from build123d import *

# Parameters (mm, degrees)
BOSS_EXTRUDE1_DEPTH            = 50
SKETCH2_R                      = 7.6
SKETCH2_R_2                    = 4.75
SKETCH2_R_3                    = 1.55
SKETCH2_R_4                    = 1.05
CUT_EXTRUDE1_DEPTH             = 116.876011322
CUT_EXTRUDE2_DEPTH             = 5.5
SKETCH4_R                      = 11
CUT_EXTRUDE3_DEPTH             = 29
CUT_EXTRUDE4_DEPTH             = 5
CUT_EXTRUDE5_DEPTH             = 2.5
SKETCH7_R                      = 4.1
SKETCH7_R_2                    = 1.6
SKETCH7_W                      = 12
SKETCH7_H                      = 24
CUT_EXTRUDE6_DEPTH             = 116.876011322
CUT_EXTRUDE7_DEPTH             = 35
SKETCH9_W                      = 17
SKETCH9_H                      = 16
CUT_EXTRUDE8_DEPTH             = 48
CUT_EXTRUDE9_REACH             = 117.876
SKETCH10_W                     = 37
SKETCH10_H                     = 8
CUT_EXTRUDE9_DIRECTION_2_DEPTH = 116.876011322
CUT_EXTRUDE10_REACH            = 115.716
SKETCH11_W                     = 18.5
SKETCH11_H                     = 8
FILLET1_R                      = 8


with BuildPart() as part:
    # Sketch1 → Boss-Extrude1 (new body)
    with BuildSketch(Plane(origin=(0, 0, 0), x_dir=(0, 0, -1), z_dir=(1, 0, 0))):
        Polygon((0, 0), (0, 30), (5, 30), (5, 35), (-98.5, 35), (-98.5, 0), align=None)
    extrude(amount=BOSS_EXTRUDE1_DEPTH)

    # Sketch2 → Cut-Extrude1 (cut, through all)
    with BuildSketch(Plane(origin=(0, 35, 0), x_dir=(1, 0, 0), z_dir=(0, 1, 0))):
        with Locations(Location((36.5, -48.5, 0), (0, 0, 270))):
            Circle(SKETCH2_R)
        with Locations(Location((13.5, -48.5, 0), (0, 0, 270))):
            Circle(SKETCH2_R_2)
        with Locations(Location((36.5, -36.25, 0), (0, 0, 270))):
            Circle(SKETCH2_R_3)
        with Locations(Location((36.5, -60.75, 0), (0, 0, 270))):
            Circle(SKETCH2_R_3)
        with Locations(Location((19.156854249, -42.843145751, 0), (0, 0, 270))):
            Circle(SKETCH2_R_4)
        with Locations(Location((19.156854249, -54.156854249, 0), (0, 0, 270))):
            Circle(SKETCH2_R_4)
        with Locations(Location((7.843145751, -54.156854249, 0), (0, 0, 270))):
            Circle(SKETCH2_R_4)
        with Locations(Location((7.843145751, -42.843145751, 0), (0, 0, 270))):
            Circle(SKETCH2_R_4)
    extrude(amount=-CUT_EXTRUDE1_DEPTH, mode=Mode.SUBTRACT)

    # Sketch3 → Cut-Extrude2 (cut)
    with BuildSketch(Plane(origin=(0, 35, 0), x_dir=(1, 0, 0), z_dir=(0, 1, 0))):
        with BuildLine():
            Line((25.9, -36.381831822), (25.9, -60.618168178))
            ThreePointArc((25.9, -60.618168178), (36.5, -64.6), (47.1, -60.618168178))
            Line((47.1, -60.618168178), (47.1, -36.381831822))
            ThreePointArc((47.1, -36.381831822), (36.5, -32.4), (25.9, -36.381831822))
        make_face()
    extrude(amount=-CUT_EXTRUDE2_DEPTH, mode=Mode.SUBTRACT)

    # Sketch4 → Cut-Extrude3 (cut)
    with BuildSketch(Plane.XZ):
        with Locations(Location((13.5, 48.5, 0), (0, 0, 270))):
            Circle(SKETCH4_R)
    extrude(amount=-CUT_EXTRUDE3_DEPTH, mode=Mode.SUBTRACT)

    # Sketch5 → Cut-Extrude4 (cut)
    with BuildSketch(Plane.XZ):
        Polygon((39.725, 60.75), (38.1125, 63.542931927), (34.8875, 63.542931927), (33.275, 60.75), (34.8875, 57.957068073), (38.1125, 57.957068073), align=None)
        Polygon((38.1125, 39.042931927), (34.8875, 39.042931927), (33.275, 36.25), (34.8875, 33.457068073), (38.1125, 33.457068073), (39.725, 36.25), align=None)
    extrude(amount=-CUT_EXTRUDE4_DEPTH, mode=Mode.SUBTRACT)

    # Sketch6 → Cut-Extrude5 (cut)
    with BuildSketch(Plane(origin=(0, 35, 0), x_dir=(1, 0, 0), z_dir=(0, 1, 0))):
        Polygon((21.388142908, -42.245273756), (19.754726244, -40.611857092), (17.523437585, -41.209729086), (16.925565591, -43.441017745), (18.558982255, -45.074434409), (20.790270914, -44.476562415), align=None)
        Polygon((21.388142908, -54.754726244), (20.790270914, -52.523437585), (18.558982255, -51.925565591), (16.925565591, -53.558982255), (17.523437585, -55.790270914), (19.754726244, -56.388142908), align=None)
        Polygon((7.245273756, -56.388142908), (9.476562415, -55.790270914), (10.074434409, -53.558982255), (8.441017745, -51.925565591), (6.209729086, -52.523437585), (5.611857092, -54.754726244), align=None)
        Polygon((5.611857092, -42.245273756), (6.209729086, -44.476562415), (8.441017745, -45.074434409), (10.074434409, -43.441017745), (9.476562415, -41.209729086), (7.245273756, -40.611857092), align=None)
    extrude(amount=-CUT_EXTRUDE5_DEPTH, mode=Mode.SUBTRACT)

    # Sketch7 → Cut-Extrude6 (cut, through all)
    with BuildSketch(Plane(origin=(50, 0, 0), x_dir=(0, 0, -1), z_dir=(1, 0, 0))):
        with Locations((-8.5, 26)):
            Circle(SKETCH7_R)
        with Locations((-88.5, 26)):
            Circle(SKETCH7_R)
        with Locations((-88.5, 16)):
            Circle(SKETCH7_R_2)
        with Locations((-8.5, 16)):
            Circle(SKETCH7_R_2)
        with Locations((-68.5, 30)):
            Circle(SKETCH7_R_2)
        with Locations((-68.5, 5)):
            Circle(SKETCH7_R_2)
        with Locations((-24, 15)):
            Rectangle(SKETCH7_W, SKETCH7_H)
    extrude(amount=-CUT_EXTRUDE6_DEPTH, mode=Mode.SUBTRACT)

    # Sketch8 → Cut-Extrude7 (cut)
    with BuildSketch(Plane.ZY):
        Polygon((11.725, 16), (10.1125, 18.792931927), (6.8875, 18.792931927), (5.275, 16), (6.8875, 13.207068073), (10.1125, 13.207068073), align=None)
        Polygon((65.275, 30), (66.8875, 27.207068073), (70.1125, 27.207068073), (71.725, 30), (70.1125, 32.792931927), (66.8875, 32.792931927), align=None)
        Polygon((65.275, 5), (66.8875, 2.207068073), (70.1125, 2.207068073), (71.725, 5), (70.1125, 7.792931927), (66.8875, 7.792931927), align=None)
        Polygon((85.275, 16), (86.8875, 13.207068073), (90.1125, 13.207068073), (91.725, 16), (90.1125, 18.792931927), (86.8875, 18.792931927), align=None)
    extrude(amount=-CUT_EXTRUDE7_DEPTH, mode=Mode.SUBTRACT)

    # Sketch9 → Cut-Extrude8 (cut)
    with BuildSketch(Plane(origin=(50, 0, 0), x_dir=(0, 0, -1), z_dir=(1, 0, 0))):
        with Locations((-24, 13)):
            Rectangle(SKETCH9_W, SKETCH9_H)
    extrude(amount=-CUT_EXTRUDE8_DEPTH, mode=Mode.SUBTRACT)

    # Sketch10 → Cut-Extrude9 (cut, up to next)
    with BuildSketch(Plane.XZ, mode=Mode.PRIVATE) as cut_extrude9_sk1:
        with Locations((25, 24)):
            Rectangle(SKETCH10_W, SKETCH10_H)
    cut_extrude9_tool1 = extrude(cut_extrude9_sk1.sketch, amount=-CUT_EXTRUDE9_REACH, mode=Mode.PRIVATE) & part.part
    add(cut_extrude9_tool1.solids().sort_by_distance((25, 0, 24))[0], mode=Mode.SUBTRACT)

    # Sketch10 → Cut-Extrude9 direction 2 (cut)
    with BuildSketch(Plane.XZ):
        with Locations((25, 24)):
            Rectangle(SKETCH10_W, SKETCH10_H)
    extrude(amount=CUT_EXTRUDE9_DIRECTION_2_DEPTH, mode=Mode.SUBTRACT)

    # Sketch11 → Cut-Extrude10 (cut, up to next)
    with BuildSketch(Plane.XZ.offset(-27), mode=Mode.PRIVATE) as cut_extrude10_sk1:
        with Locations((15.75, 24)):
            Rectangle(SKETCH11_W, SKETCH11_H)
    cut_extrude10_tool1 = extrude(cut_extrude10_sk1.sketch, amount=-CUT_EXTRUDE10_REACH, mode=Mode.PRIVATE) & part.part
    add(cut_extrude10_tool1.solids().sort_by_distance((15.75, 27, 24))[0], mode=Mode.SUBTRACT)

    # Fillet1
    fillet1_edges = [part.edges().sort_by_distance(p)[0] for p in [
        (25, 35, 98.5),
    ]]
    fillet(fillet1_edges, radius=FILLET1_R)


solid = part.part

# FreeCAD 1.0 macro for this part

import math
import FreeCAD as App
import Part
import Sketcher

V = App.Vector
Q = App.Units.Quantity


def edges_at(feature, points):
    """Names of the edges that pass closest to the given points."""
    edges = feature.Shape.Edges
    near = lambda p: min(range(len(edges)), key=lambda i: edges[i].distToShape(Part.Vertex(*p))[0])
    return sorted({f"Edge{near(p) + 1}" for p in points})

doc = App.newDocument("Part")
body = doc.addObject("PartDesign::Body", "Body")

# Sketch on YZ plane
sketch1 = body.newObject("Sketcher::SketchObject", "Sketch")
sketch1.AttachmentSupport = (doc.getObject("YZ_Plane"), [""])
sketch1.MapMode = "FlatFace"
sketch1.addGeometry([
    Part.LineSegment(V(0, 0, 0), V(30, 0, 0)),  # 0
    Part.LineSegment(V(30, 0, 0), V(30, -5, 0)),  # 1
    Part.LineSegment(V(30, -5, 0), V(35, -5, 0)),  # 2
    Part.LineSegment(V(35, -5, 0), V(35, 98, 0)),  # 3
    Part.LineSegment(V(35, 98, 0), V(0, 98, 0)),  # 4
    Part.LineSegment(V(0, 98, 0), V(0, 0, 0)),  # 5
], False)
sketch1.addConstraint([
    Sketcher.Constraint("Coincident", 0, 2, 1, 1),
    Sketcher.Constraint("Coincident", 1, 2, 2, 1),
    Sketcher.Constraint("Coincident", 2, 2, 3, 1),
    Sketcher.Constraint("Coincident", 3, 2, 4, 1),
    Sketcher.Constraint("Coincident", 4, 2, 5, 1),
    Sketcher.Constraint("Coincident", 5, 2, 0, 1),
    Sketcher.Constraint("Horizontal", 0),
    Sketcher.Constraint("Vertical", 1),
    Sketcher.Constraint("Horizontal", 2),
    Sketcher.Constraint("Vertical", 3),
    Sketcher.Constraint("Horizontal", 4),
    Sketcher.Constraint("Vertical", 5),
    Sketcher.Constraint("Coincident", 5, 2, -1, 1),
    Sketcher.Constraint("Equal", 2, 1),
    Sketcher.Constraint("DistanceX", 0, 1, 0, 2, 30.0),
    Sketcher.Constraint("DistanceX", 2, 1, 2, 2, 5.0),
    Sketcher.Constraint("DistanceY", 3, 1, 3, 2, 103.5),
])
pad1 = body.newObject("PartDesign::Pad", "Pad")
pad1.Profile = sketch1
pad1.Length = 50

# Sketch on XZ plane
sketch2 = body.newObject("Sketcher::SketchObject", "Sketch001")
sketch2.AttachmentSupport = (doc.getObject("XZ_Plane"), [""])
sketch2.MapMode = "FlatFace"
sketch2.AttachmentOffset = App.Placement(V(0, 0, -35), App.Rotation())
sketch2.addGeometry([
    Part.Circle(V(36.5, 48.5, 0), V(0, 0, 1), 7.6),  # 0
    Part.Circle(V(13.5, 48.5, 0), V(0, 0, 1), 4.8),  # 1
    Part.Circle(V(36.5, 36.2, 0), V(0, 0, 1), 1.6),  # 2
    Part.Circle(V(36.5, 60.8, 0), V(0, 0, 1), 1.6),  # 3
    Part.Circle(V(19.2, 42.8, 0), V(0, 0, 1), 1.1),  # 4
    Part.Circle(V(19.2, 54.2, 0), V(0, 0, 1), 1.1),  # 5
    Part.Circle(V(7.8, 54.2, 0), V(0, 0, 1), 1.1),  # 6
    Part.Circle(V(7.8, 42.8, 0), V(0, 0, 1), 1.1),  # 7
], False)
sketch2.addConstraint([
    Sketcher.Constraint("Equal", 2, 3),
    Sketcher.Constraint("Equal", 4, 5),
    Sketcher.Constraint("Equal", 5, 6),
    Sketcher.Constraint("Equal", 6, 7),
    Sketcher.Constraint("Horizontal", 0, 3, 1, 3),
    Sketcher.Constraint("Horizontal", 5, 3, 6, 3),
    Sketcher.Constraint("Horizontal", 4, 3, 7, 3),
    Sketcher.Constraint("Vertical", 0, 3, 2, 3),
    Sketcher.Constraint("Vertical", 2, 3, 3, 3),
    Sketcher.Constraint("Vertical", 4, 3, 5, 3),
    Sketcher.Constraint("Vertical", 6, 3, 7, 3),
    Sketcher.Constraint("Diameter", 0, 15.2),
    Sketcher.Constraint("Diameter", 1, 9.5),
    Sketcher.Constraint("Diameter", 2, 3.1),
    Sketcher.Constraint("Diameter", 4, 2.1),
    Sketcher.Constraint("DistanceX", 1, 3, 0, 3, 23.0),
    Sketcher.Constraint("DistanceX", -1, 1, 0, 3, 36.5),
    Sketcher.Constraint("DistanceY", -1, 1, 0, 3, 48.5),
    Sketcher.Constraint("DistanceY", 2, 3, 3, 3, 24.5),
    Sketcher.Constraint("DistanceY", -1, 1, 2, 3, 36.25),
    Sketcher.Constraint("DistanceY", 4, 3, 5, 3, 11.313708),
    Sketcher.Constraint("DistanceX", 6, 3, 5, 3, 11.313708),
    Sketcher.Constraint("DistanceX", -1, 1, 4, 3, 19.156854),
    Sketcher.Constraint("DistanceY", -1, 1, 4, 3, 42.843146),
])
pocket1 = body.newObject("PartDesign::Pocket", "Pocket")
pocket1.Profile = sketch2
pocket1.Type = "ThroughAll"
pocket1.Reversed = True

# Sketch on XZ plane
sketch3 = body.newObject("Sketcher::SketchObject", "Sketch002")
sketch3.AttachmentSupport = (doc.getObject("XZ_Plane"), [""])
sketch3.MapMode = "FlatFace"
sketch3.AttachmentOffset = App.Placement(V(0, 0, -35), App.Rotation())
sketch3.addGeometry([
    Part.LineSegment(V(26, 36, 0), V(26, 61, 0)),
    Part.ArcOfCircle(Part.Circle(V(36, 49, 0), V(0, 0, 1), 16), math.radians(49), math.radians(131)),
    Part.LineSegment(V(47, 61, 0), V(47, 36, 0)),
    Part.ArcOfCircle(Part.Circle(V(36, 48, 0), V(0, 0, 1), 16), math.radians(-131), math.radians(-49)),
], False)
sketch3.addConstraint([
    Sketcher.Constraint("Coincident", 0, 2, 1, 2),
    Sketcher.Constraint("Coincident", 1, 1, 2, 1),
    Sketcher.Constraint("Coincident", 2, 2, 3, 2),
    Sketcher.Constraint("Coincident", 3, 1, 0, 1),
    Sketcher.Constraint("Vertical", 0),
    Sketcher.Constraint("Vertical", 2),
    Sketcher.Constraint("Coincident", 3, 3, 1, 3),
    Sketcher.Constraint("Equal", 1, 3),
    Sketcher.Constraint("Horizontal", 0, 2, 1, 1),
    Sketcher.Constraint("Radius", 1, 16.1),
    Sketcher.Constraint("DistanceX", -1, 1, 1, 3, 36.5),
    Sketcher.Constraint("DistanceY", -1, 1, 1, 3, 48.5),
    Sketcher.Constraint("DistanceX", -1, 1, 0, 2, 25.9),
])
pocket2 = body.newObject("PartDesign::Pocket", "Pocket001")
pocket2.Profile = sketch3
pocket2.Length = 5.5
pocket2.Reversed = True

# Sketch on XZ plane
sketch4 = body.newObject("Sketcher::SketchObject", "Sketch003")
sketch4.AttachmentSupport = (doc.getObject("XZ_Plane"), [""])
sketch4.MapMode = "FlatFace"
sketch4.addGeometry(Part.Circle(V(14, 48, 0), V(0, 0, 1), 11), False)
sketch4.addConstraint([
    Sketcher.Constraint("Diameter", 0, 22.0),
    Sketcher.Constraint("DistanceX", -1, 1, 0, 3, 13.5),
    Sketcher.Constraint("DistanceY", -1, 1, 0, 3, 48.5),
])
pocket3 = body.newObject("PartDesign::Pocket", "Pocket002")
pocket3.Profile = sketch4
pocket3.Length = 29

# Sketch on XZ plane
sketch5 = body.newObject("Sketcher::SketchObject", "Sketch004")
sketch5.AttachmentSupport = (doc.getObject("XZ_Plane"), [""])
sketch5.MapMode = "FlatFace"
sketch5.addGeometry([
    Part.LineSegment(V(39.7, 60.8, 0), V(38.1, 63.5, 0)),  # 0
    Part.LineSegment(V(38.1, 63.5, 0), V(34.9, 63.5, 0)),  # 1
    Part.LineSegment(V(34.9, 63.5, 0), V(33.3, 60.8, 0)),  # 2
    Part.LineSegment(V(33.3, 60.8, 0), V(34.9, 58, 0)),  # 3
    Part.LineSegment(V(34.9, 58, 0), V(38.1, 58, 0)),  # 4
    Part.LineSegment(V(38.1, 58, 0), V(39.7, 60.8, 0)),  # 5
    Part.LineSegment(V(38.1, 39, 0), V(34.9, 39, 0)),  # 6
    Part.LineSegment(V(34.9, 39, 0), V(33.3, 36.2, 0)),  # 7
    Part.LineSegment(V(33.3, 36.2, 0), V(34.9, 33.5, 0)),  # 8
    Part.LineSegment(V(34.9, 33.5, 0), V(38.1, 33.5, 0)),  # 9
    Part.LineSegment(V(38.1, 33.5, 0), V(39.7, 36.2, 0)),  # 10
    Part.LineSegment(V(39.7, 36.2, 0), V(38.1, 39, 0)),  # 11
], False)
sketch5.addConstraint([
    Sketcher.Constraint("Coincident", 0, 2, 1, 1),
    Sketcher.Constraint("Coincident", 1, 2, 2, 1),
    Sketcher.Constraint("Coincident", 2, 2, 3, 1),
    Sketcher.Constraint("Coincident", 3, 2, 4, 1),
    Sketcher.Constraint("Coincident", 4, 2, 5, 1),
    Sketcher.Constraint("Coincident", 5, 2, 0, 1),
    Sketcher.Constraint("Coincident", 6, 2, 7, 1),
    Sketcher.Constraint("Coincident", 7, 2, 8, 1),
    Sketcher.Constraint("Coincident", 8, 2, 9, 1),
    Sketcher.Constraint("Coincident", 9, 2, 10, 1),
    Sketcher.Constraint("Coincident", 10, 2, 11, 1),
    Sketcher.Constraint("Coincident", 11, 2, 6, 1),
    Sketcher.Constraint("Horizontal", 1),
    Sketcher.Constraint("Horizontal", 4),
    Sketcher.Constraint("Horizontal", 6),
    Sketcher.Constraint("Horizontal", 9),
    Sketcher.Constraint("Parallel", 0, 3),
    Sketcher.Constraint("Parallel", 2, 5),
    Sketcher.Constraint("Parallel", 5, 7),
    Sketcher.Constraint("Parallel", 3, 8),
    Sketcher.Constraint("Parallel", 7, 10),
    Sketcher.Constraint("Parallel", 8, 11),
    Sketcher.Constraint("Horizontal", 2, 2, 5, 2),
    Sketcher.Constraint("Horizontal", 7, 2, 10, 2),
    Sketcher.Constraint("Vertical", 1, 2, 3, 2),
    Sketcher.Constraint("Vertical", 0, 2, 4, 2),
    Sketcher.Constraint("Vertical", 3, 2, 6, 2),
    Sketcher.Constraint("Vertical", 2, 2, 7, 2),
    Sketcher.Constraint("Vertical", 6, 2, 8, 2),
    Sketcher.Constraint("Vertical", 4, 2, 9, 2),
    Sketcher.Constraint("Angle", 0, Q("120 deg")),
    Sketcher.Constraint("DistanceY", 6, 2, 1, 2, 24.5),
    Sketcher.Constraint("DistanceX", 1, 2, 1, 1, 3.225),
    Sketcher.Constraint("DistanceY", -1, 1, 2, 2, 60.75),
    Sketcher.Constraint("DistanceX", 2, 2, 5, 2, 6.45),
    Sketcher.Constraint("DistanceX", -1, 1, 2, 2, 33.275),
])
pocket4 = body.newObject("PartDesign::Pocket", "Pocket003")
pocket4.Profile = sketch5
pocket4.Length = 5

# Sketch on XZ plane
sketch6 = body.newObject("Sketcher::SketchObject", "Sketch005")
sketch6.AttachmentSupport = (doc.getObject("XZ_Plane"), [""])
sketch6.MapMode = "FlatFace"
sketch6.AttachmentOffset = App.Placement(V(0, 0, -35), App.Rotation())
sketch6.addGeometry([
    Part.LineSegment(V(21.4, 42.2, 0), V(19.8, 40.6, 0)),  # 0
    Part.LineSegment(V(19.8, 40.6, 0), V(17.5, 41.2, 0)),  # 1
    Part.LineSegment(V(17.5, 41.2, 0), V(16.9, 43.4, 0)),  # 2
    Part.LineSegment(V(16.9, 43.4, 0), V(18.6, 45.1, 0)),  # 3
    Part.LineSegment(V(18.6, 45.1, 0), V(20.8, 44.5, 0)),  # 4
    Part.LineSegment(V(20.8, 44.5, 0), V(21.4, 42.2, 0)),  # 5
    Part.LineSegment(V(21.4, 54.8, 0), V(20.8, 52.5, 0)),  # 6
    Part.LineSegment(V(20.8, 52.5, 0), V(18.6, 51.9, 0)),  # 7
    Part.LineSegment(V(18.6, 51.9, 0), V(16.9, 53.6, 0)),  # 8
    Part.LineSegment(V(16.9, 53.6, 0), V(17.5, 55.8, 0)),  # 9
    Part.LineSegment(V(17.5, 55.8, 0), V(19.8, 56.4, 0)),  # 10
    Part.LineSegment(V(19.8, 56.4, 0), V(21.4, 54.8, 0)),  # 11
    Part.LineSegment(V(7.2, 56.4, 0), V(9.5, 55.8, 0)),  # 12
    Part.LineSegment(V(9.5, 55.8, 0), V(10.1, 53.6, 0)),  # 13
    Part.LineSegment(V(10.1, 53.6, 0), V(8.4, 51.9, 0)),  # 14
    Part.LineSegment(V(8.4, 51.9, 0), V(6.2, 52.5, 0)),  # 15
    Part.LineSegment(V(6.2, 52.5, 0), V(5.6, 54.8, 0)),  # 16
    Part.LineSegment(V(5.6, 54.8, 0), V(7.2, 56.4, 0)),  # 17
    Part.LineSegment(V(5.6, 42.2, 0), V(6.2, 44.5, 0)),  # 18
    Part.LineSegment(V(6.2, 44.5, 0), V(8.4, 45.1, 0)),  # 19
    Part.LineSegment(V(8.4, 45.1, 0), V(10.1, 43.4, 0)),  # 20
    Part.LineSegment(V(10.1, 43.4, 0), V(9.5, 41.2, 0)),  # 21
    Part.LineSegment(V(9.5, 41.2, 0), V(7.2, 40.6, 0)),  # 22
    Part.LineSegment(V(7.2, 40.6, 0), V(5.6, 42.2, 0)),  # 23
], False)
sketch6.addConstraint([
    Sketcher.Constraint("Coincident", 0, 2, 1, 1),
    Sketcher.Constraint("Coincident", 1, 2, 2, 1),
    Sketcher.Constraint("Coincident", 2, 2, 3, 1),
    Sketcher.Constraint("Coincident", 3, 2, 4, 1),
    Sketcher.Constraint("Coincident", 4, 2, 5, 1),
    Sketcher.Constraint("Coincident", 5, 2, 0, 1),
    Sketcher.Constraint("Coincident", 6, 2, 7, 1),
    Sketcher.Constraint("Coincident", 7, 2, 8, 1),
    Sketcher.Constraint("Coincident", 8, 2, 9, 1),
    Sketcher.Constraint("Coincident", 9, 2, 10, 1),
    Sketcher.Constraint("Coincident", 10, 2, 11, 1),
    Sketcher.Constraint("Coincident", 11, 2, 6, 1),
    Sketcher.Constraint("Coincident", 12, 2, 13, 1),
    Sketcher.Constraint("Coincident", 13, 2, 14, 1),
    Sketcher.Constraint("Coincident", 14, 2, 15, 1),
    Sketcher.Constraint("Coincident", 15, 2, 16, 1),
    Sketcher.Constraint("Coincident", 16, 2, 17, 1),
    Sketcher.Constraint("Coincident", 17, 2, 12, 1),
    Sketcher.Constraint("Coincident", 18, 2, 19, 1),
    Sketcher.Constraint("Coincident", 19, 2, 20, 1),
    Sketcher.Constraint("Coincident", 20, 2, 21, 1),
    Sketcher.Constraint("Coincident", 21, 2, 22, 1),
    Sketcher.Constraint("Coincident", 22, 2, 23, 1),
    Sketcher.Constraint("Coincident", 23, 2, 18, 1),
    Sketcher.Constraint("Parallel", 0, 3),
    Sketcher.Constraint("Parallel", 1, 4),
    Sketcher.Constraint("Parallel", 2, 5),
    Sketcher.Constraint("Perpendicular", 4, 6),
    Sketcher.Constraint("Perpendicular", 5, 7),
    Sketcher.Constraint("Perpendicular", 3, 8),
    Sketcher.Constraint("Parallel", 6, 9),
    Sketcher.Constraint("Parallel", 7, 10),
    Sketcher.Constraint("Parallel", 8, 11),
    Sketcher.Constraint("Perpendicular", 9, 12),
    Sketcher.Constraint("Perpendicular", 10, 13),
    Sketcher.Constraint("Perpendicular", 11, 14),
    Sketcher.Constraint("Parallel", 12, 15),
    Sketcher.Constraint("Parallel", 13, 16),
    Sketcher.Constraint("Parallel", 14, 17),
    Sketcher.Constraint("Perpendicular", 15, 18),
    Sketcher.Constraint("Perpendicular", 16, 19),
    Sketcher.Constraint("Perpendicular", 17, 20),
    Sketcher.Constraint("Parallel", 18, 21),
    Sketcher.Constraint("Parallel", 19, 22),
    Sketcher.Constraint("Parallel", 20, 23),
    Sketcher.Constraint("Horizontal", 9, 2, 12, 2),
    Sketcher.Constraint("Horizontal", 8, 2, 13, 2),
    Sketcher.Constraint("Horizontal", 7, 2, 14, 2),
    Sketcher.Constraint("Horizontal", 6, 2, 15, 2),
    Sketcher.Constraint("Horizontal", 11, 2, 16, 2),
    Sketcher.Constraint("Horizontal", 4, 2, 18, 2),
    Sketcher.Constraint("Horizontal", 3, 2, 19, 2),
    Sketcher.Constraint("Horizontal", 2, 2, 20, 2),
    Sketcher.Constraint("Horizontal", 1, 2, 21, 2),
    Sketcher.Constraint("Horizontal", 0, 2, 22, 2),
    Sketcher.Constraint("Vertical", 4, 2, 6, 2),
    Sketcher.Constraint("Vertical", 3, 2, 7, 2),
    Sketcher.Constraint("Vertical", 2, 2, 8, 2),
    Sketcher.Constraint("Vertical", 1, 2, 9, 2),
    Sketcher.Constraint("Vertical", 0, 2, 10, 2),
    Sketcher.Constraint("Vertical", 15, 2, 18, 2),
    Sketcher.Constraint("Vertical", 14, 2, 19, 2),
    Sketcher.Constraint("Vertical", 13, 2, 20, 2),
    Sketcher.Constraint("Equal", 0, 1),
    Sketcher.Constraint("Equal", 1, 2),
    Sketcher.Constraint("Equal", 2, 3),
    Sketcher.Constraint("Angle", 1, Q("165 deg")),
    Sketcher.Constraint("Distance", 0, 2.31),
    Sketcher.Constraint("DistanceY", -1, 1, 1, 2, 41.209729),
    Sketcher.Constraint("DistanceX", -1, 1, 4, 2, 20.790271),
    Sketcher.Constraint("DistanceY", -1, 1, 9, 2, 55.790271),
    Sketcher.Constraint("DistanceX", -1, 1, 15, 2, 6.209729),
])
pocket5 = body.newObject("PartDesign::Pocket", "Pocket004")
pocket5.Profile = sketch6
pocket5.Length = 2.5
pocket5.Reversed = True

# Sketch on YZ plane
sketch7 = body.newObject("Sketcher::SketchObject", "Sketch006")
sketch7.AttachmentSupport = (doc.getObject("YZ_Plane"), [""])
sketch7.MapMode = "FlatFace"
sketch7.AttachmentOffset = App.Placement(V(0, 0, 50), App.Rotation())
sketch7.addGeometry([
    Part.Circle(V(26, 8.5, 0), V(0, 0, 1), 4.1),  # 0
    Part.Circle(V(26, 88.5, 0), V(0, 0, 1), 4.1),  # 1
    Part.Circle(V(16, 88.5, 0), V(0, 0, 1), 1.6),  # 2
    Part.Circle(V(16, 8.5, 0), V(0, 0, 1), 1.6),  # 3
    Part.Circle(V(30, 68.5, 0), V(0, 0, 1), 1.6),  # 4
    Part.Circle(V(5, 68.5, 0), V(0, 0, 1), 1.6),  # 5
    Part.LineSegment(V(27, 30, 0), V(3, 30, 0)),  # 6
    Part.LineSegment(V(3, 30, 0), V(3, 18, 0)),  # 7
    Part.LineSegment(V(3, 18, 0), V(27, 18, 0)),  # 8
    Part.LineSegment(V(27, 18, 0), V(27, 30, 0)),  # 9
], False)
sketch7.addConstraint([
    Sketcher.Constraint("Coincident", 6, 2, 7, 1),
    Sketcher.Constraint("Coincident", 7, 2, 8, 1),
    Sketcher.Constraint("Coincident", 8, 2, 9, 1),
    Sketcher.Constraint("Coincident", 9, 2, 6, 1),
    Sketcher.Constraint("Horizontal", 6),
    Sketcher.Constraint("Vertical", 7),
    Sketcher.Constraint("Horizontal", 8),
    Sketcher.Constraint("Vertical", 9),
    Sketcher.Constraint("Equal", 0, 1),
    Sketcher.Constraint("Equal", 2, 3),
    Sketcher.Constraint("Equal", 3, 4),
    Sketcher.Constraint("Equal", 4, 5),
    Sketcher.Constraint("Horizontal", 1, 3, 2, 3),
    Sketcher.Constraint("Horizontal", 0, 3, 3, 3),
    Sketcher.Constraint("Horizontal", 4, 3, 5, 3),
    Sketcher.Constraint("Vertical", 0, 3, 1, 3),
    Sketcher.Constraint("Vertical", 2, 3, 3, 3),
    Sketcher.Constraint("Diameter", 0, 8.2),
    Sketcher.Constraint("Diameter", 2, 3.2),
    Sketcher.Constraint("DistanceX", 6, 2, 6, 1, 24.0),
    Sketcher.Constraint("DistanceY", 7, 2, 7, 1, 12.0),
    Sketcher.Constraint("DistanceX", -1, 1, 0, 3, 26.0),
    Sketcher.Constraint("DistanceX", -1, 1, 2, 3, 16.0),
    Sketcher.Constraint("DistanceX", -1, 1, 4, 3, 30.0),
    Sketcher.Constraint("DistanceX", -1, 1, 5, 3, 5.0),
    Sketcher.Constraint("DistanceX", -1, 1, 6, 2, 3.0),
    Sketcher.Constraint("DistanceY", -1, 1, 6, 2, 30.0),
    Sketcher.Constraint("DistanceY", 0, 3, 1, 3, 80.0),
    Sketcher.Constraint("DistanceY", 4, 3, 1, 3, 20.0),
    Sketcher.Constraint("DistanceY", -1, 1, 0, 3, 8.5),
])
pocket6 = body.newObject("PartDesign::Pocket", "Pocket005")
pocket6.Profile = sketch7
pocket6.Type = "ThroughAll"

# Sketch on YZ plane
sketch8 = body.newObject("Sketcher::SketchObject", "Sketch007")
sketch8.AttachmentSupport = (doc.getObject("YZ_Plane"), [""])
sketch8.MapMode = "FlatFace"
sketch8.addGeometry([
    Part.LineSegment(V(16, 11.7, 0), V(18.8, 10.1, 0)),  # 0
    Part.LineSegment(V(18.8, 10.1, 0), V(18.8, 6.9, 0)),  # 1
    Part.LineSegment(V(18.8, 6.9, 0), V(16, 5.3, 0)),  # 2
    Part.LineSegment(V(16, 5.3, 0), V(13.2, 6.9, 0)),  # 3
    Part.LineSegment(V(13.2, 6.9, 0), V(13.2, 10.1, 0)),  # 4
    Part.LineSegment(V(13.2, 10.1, 0), V(16, 11.7, 0)),  # 5
    Part.LineSegment(V(30, 65.3, 0), V(27.2, 66.9, 0)),  # 6
    Part.LineSegment(V(27.2, 66.9, 0), V(27.2, 70.1, 0)),  # 7
    Part.LineSegment(V(27.2, 70.1, 0), V(30, 71.7, 0)),  # 8
    Part.LineSegment(V(30, 71.7, 0), V(32.8, 70.1, 0)),  # 9
    Part.LineSegment(V(32.8, 70.1, 0), V(32.8, 66.9, 0)),  # 10
    Part.LineSegment(V(32.8, 66.9, 0), V(30, 65.3, 0)),  # 11
    Part.LineSegment(V(5, 65.3, 0), V(2.2, 66.9, 0)),  # 12
    Part.LineSegment(V(2.2, 66.9, 0), V(2.2, 70.1, 0)),  # 13
    Part.LineSegment(V(2.2, 70.1, 0), V(5, 71.7, 0)),  # 14
    Part.LineSegment(V(5, 71.7, 0), V(7.8, 70.1, 0)),  # 15
    Part.LineSegment(V(7.8, 70.1, 0), V(7.8, 66.9, 0)),  # 16
    Part.LineSegment(V(7.8, 66.9, 0), V(5, 65.3, 0)),  # 17
    Part.LineSegment(V(16, 85.3, 0), V(13.2, 86.9, 0)),  # 18
    Part.LineSegment(V(13.2, 86.9, 0), V(13.2, 90.1, 0)),  # 19
    Part.LineSegment(V(13.2, 90.1, 0), V(16, 91.7, 0)),  # 20
    Part.LineSegment(V(16, 91.7, 0), V(18.8, 90.1, 0)),  # 21
    Part.LineSegment(V(18.8, 90.1, 0), V(18.8, 86.9, 0)),  # 22
    Part.LineSegment(V(18.8, 86.9, 0), V(16, 85.3, 0)),  # 23
], False)
sketch8.addConstraint([
    Sketcher.Constraint("Coincident", 0, 2, 1, 1),
    Sketcher.Constraint("Coincident", 1, 2, 2, 1),
    Sketcher.Constraint("Coincident", 2, 2, 3, 1),
    Sketcher.Constraint("Coincident", 3, 2, 4, 1),
    Sketcher.Constraint("Coincident", 4, 2, 5, 1),
    Sketcher.Constraint("Coincident", 5, 2, 0, 1),
    Sketcher.Constraint("Coincident", 6, 2, 7, 1),
    Sketcher.Constraint("Coincident", 7, 2, 8, 1),
    Sketcher.Constraint("Coincident", 8, 2, 9, 1),
    Sketcher.Constraint("Coincident", 9, 2, 10, 1),
    Sketcher.Constraint("Coincident", 10, 2, 11, 1),
    Sketcher.Constraint("Coincident", 11, 2, 6, 1),
    Sketcher.Constraint("Coincident", 12, 2, 13, 1),
    Sketcher.Constraint("Coincident", 13, 2, 14, 1),
    Sketcher.Constraint("Coincident", 14, 2, 15, 1),
    Sketcher.Constraint("Coincident", 15, 2, 16, 1),
    Sketcher.Constraint("Coincident", 16, 2, 17, 1),
    Sketcher.Constraint("Coincident", 17, 2, 12, 1),
    Sketcher.Constraint("Coincident", 18, 2, 19, 1),
    Sketcher.Constraint("Coincident", 19, 2, 20, 1),
    Sketcher.Constraint("Coincident", 20, 2, 21, 1),
    Sketcher.Constraint("Coincident", 21, 2, 22, 1),
    Sketcher.Constraint("Coincident", 22, 2, 23, 1),
    Sketcher.Constraint("Coincident", 23, 2, 18, 1),
    Sketcher.Constraint("Vertical", 1),
    Sketcher.Constraint("Vertical", 4),
    Sketcher.Constraint("Vertical", 7),
    Sketcher.Constraint("Vertical", 10),
    Sketcher.Constraint("Vertical", 13),
    Sketcher.Constraint("Vertical", 16),
    Sketcher.Constraint("Vertical", 19),
    Sketcher.Constraint("Vertical", 22),
    Sketcher.Constraint("Parallel", 0, 3),
    Sketcher.Constraint("Parallel", 2, 5),
    Sketcher.Constraint("Parallel", 3, 6),
    Sketcher.Constraint("Parallel", 5, 8),
    Sketcher.Constraint("Parallel", 6, 9),
    Sketcher.Constraint("Parallel", 8, 11),
    Sketcher.Constraint("Parallel", 9, 12),
    Sketcher.Constraint("Parallel", 11, 14),
    Sketcher.Constraint("Parallel", 12, 15),
    Sketcher.Constraint("Parallel", 14, 17),
    Sketcher.Constraint("Parallel", 15, 18),
    Sketcher.Constraint("Parallel", 17, 20),
    Sketcher.Constraint("Parallel", 18, 21),
    Sketcher.Constraint("Parallel", 20, 23),
    Sketcher.Constraint("Horizontal", 1, 2, 3, 2),
    Sketcher.Constraint("Horizontal", 0, 2, 4, 2),
    Sketcher.Constraint("Horizontal", 7, 2, 9, 2),
    Sketcher.Constraint("Horizontal", 6, 2, 10, 2),
    Sketcher.Constraint("Horizontal", 10, 2, 12, 2),
    Sketcher.Constraint("Horizontal", 9, 2, 13, 2),
    Sketcher.Constraint("Horizontal", 8, 2, 14, 2),
    Sketcher.Constraint("Horizontal", 13, 2, 15, 2),
    Sketcher.Constraint("Horizontal", 12, 2, 16, 2),
    Sketcher.Constraint("Horizontal", 19, 2, 21, 2),
    Sketcher.Constraint("Horizontal", 18, 2, 22, 2),
    Sketcher.Constraint("Vertical", 2, 2, 5, 2),
    Sketcher.Constraint("Vertical", 4, 2, 18, 2),
    Sketcher.Constraint("Vertical", 5, 2, 20, 2),
    Sketcher.Constraint("Equal", 4, 7),
    Sketcher.Constraint("Equal", 16, 19),
    Sketcher.Constraint("Equal", 5, 6),
    Sketcher.Constraint("Angle", 0, Q("-30 deg")),
    Sketcher.Constraint("DistanceX", -1, 1, 2, 2, 16.0),
    Sketcher.Constraint("DistanceX", -1, 1, 8, 2, 30.0),
    Sketcher.Constraint("DistanceX", -1, 1, 14, 2, 5.0),
    Sketcher.Constraint("DistanceY", 1, 2, 6, 2, 60.0),
    Sketcher.Constraint("DistanceY", 16, 2, 18, 2, 20.0),
    Sketcher.Constraint("DistanceY", 1, 2, 1, 1, 3.225),
    Sketcher.Constraint("DistanceY", 2, 2, 5, 2, 6.45),
    Sketcher.Constraint("DistanceY", -1, 1, 2, 2, 5.275),
])
pocket7 = body.newObject("PartDesign::Pocket", "Pocket006")
pocket7.Profile = sketch8
pocket7.Length = 35
pocket7.Reversed = True

# Sketch on YZ plane
sketch9 = body.newObject("Sketcher::SketchObject", "Sketch008")
sketch9.AttachmentSupport = (doc.getObject("YZ_Plane"), [""])
sketch9.MapMode = "FlatFace"
sketch9.AttachmentOffset = App.Placement(V(0, 0, 50), App.Rotation())
sketch9.addGeometry([
    Part.LineSegment(V(21, 32, 0), V(5, 32, 0)),
    Part.LineSegment(V(5, 32, 0), V(5, 16, 0)),
    Part.LineSegment(V(5, 16, 0), V(21, 16, 0)),
    Part.LineSegment(V(21, 16, 0), V(21, 32, 0)),
], False)
sketch9.addConstraint([
    Sketcher.Constraint("Coincident", 0, 2, 1, 1),
    Sketcher.Constraint("Coincident", 1, 2, 2, 1),
    Sketcher.Constraint("Coincident", 2, 2, 3, 1),
    Sketcher.Constraint("Coincident", 3, 2, 0, 1),
    Sketcher.Constraint("Horizontal", 0),
    Sketcher.Constraint("Vertical", 1),
    Sketcher.Constraint("Horizontal", 2),
    Sketcher.Constraint("Vertical", 3),
    Sketcher.Constraint("DistanceX", 0, 2, 0, 1, 16.0),
    Sketcher.Constraint("DistanceY", 1, 2, 1, 1, 17.0),
    Sketcher.Constraint("DistanceX", -1, 1, 0, 2, 5.0),
    Sketcher.Constraint("DistanceY", -1, 1, 0, 2, 32.5),
])
pocket8 = body.newObject("PartDesign::Pocket", "Pocket007")
pocket8.Profile = sketch9
pocket8.Length = 48

# Sketch on XZ plane
sketch10 = body.newObject("Sketcher::SketchObject", "Sketch009")
sketch10.AttachmentSupport = (doc.getObject("XZ_Plane"), [""])
sketch10.MapMode = "FlatFace"
sketch10.addGeometry([
    Part.LineSegment(V(6, 28, 0), V(6, 20, 0)),
    Part.LineSegment(V(6, 20, 0), V(44, 20, 0)),
    Part.LineSegment(V(44, 20, 0), V(44, 28, 0)),
    Part.LineSegment(V(44, 28, 0), V(6, 28, 0)),
], False)
sketch10.addConstraint([
    Sketcher.Constraint("Coincident", 0, 2, 1, 1),
    Sketcher.Constraint("Coincident", 1, 2, 2, 1),
    Sketcher.Constraint("Coincident", 2, 2, 3, 1),
    Sketcher.Constraint("Coincident", 3, 2, 0, 1),
    Sketcher.Constraint("Vertical", 0),
    Sketcher.Constraint("Horizontal", 1),
    Sketcher.Constraint("Vertical", 2),
    Sketcher.Constraint("Horizontal", 3),
    Sketcher.Constraint("DistanceX", 1, 1, 1, 2, 37.0),
    Sketcher.Constraint("DistanceY", 0, 2, 0, 1, 8.0),
    Sketcher.Constraint("DistanceY", -1, 1, 0, 2, 20.0),
    Sketcher.Constraint("DistanceX", -1, 1, 0, 2, 6.5),
])
pocket9 = body.newObject("PartDesign::Pocket", "Pocket008")
pocket9.Profile = sketch10
pocket9.Type = "UpToFirst"

# Sketch on XZ plane
sketch11 = body.newObject("Sketcher::SketchObject", "Sketch010")
sketch11.AttachmentSupport = (doc.getObject("XZ_Plane"), [""])
sketch11.MapMode = "FlatFace"
sketch11.addGeometry([
    Part.LineSegment(V(6, 28, 0), V(6, 20, 0)),
    Part.LineSegment(V(6, 20, 0), V(44, 20, 0)),
    Part.LineSegment(V(44, 20, 0), V(44, 28, 0)),
    Part.LineSegment(V(44, 28, 0), V(6, 28, 0)),
], False)
sketch11.addConstraint([
    Sketcher.Constraint("Coincident", 0, 2, 1, 1),
    Sketcher.Constraint("Coincident", 1, 2, 2, 1),
    Sketcher.Constraint("Coincident", 2, 2, 3, 1),
    Sketcher.Constraint("Coincident", 3, 2, 0, 1),
    Sketcher.Constraint("Vertical", 0),
    Sketcher.Constraint("Horizontal", 1),
    Sketcher.Constraint("Vertical", 2),
    Sketcher.Constraint("Horizontal", 3),
    Sketcher.Constraint("DistanceX", 1, 1, 1, 2, 37.0),
    Sketcher.Constraint("DistanceY", 0, 2, 0, 1, 8.0),
    Sketcher.Constraint("DistanceY", -1, 1, 0, 2, 20.0),
    Sketcher.Constraint("DistanceX", -1, 1, 0, 2, 6.5),
])
pocket10 = body.newObject("PartDesign::Pocket", "Pocket009")
pocket10.Profile = sketch11
pocket10.Length = 116.876011
pocket10.Reversed = True

# Sketch on XZ plane
sketch12 = body.newObject("Sketcher::SketchObject", "Sketch011")
sketch12.AttachmentSupport = (doc.getObject("XZ_Plane"), [""])
sketch12.MapMode = "FlatFace"
sketch12.AttachmentOffset = App.Placement(V(0, 0, -27), App.Rotation())
sketch12.addGeometry([
    Part.LineSegment(V(6, 28, 0), V(6, 20, 0)),
    Part.LineSegment(V(6, 20, 0), V(25, 20, 0)),
    Part.LineSegment(V(25, 20, 0), V(25, 28, 0)),
    Part.LineSegment(V(25, 28, 0), V(6, 28, 0)),
], False)
sketch12.addConstraint([
    Sketcher.Constraint("Coincident", 0, 2, 1, 1),
    Sketcher.Constraint("Coincident", 1, 2, 2, 1),
    Sketcher.Constraint("Coincident", 2, 2, 3, 1),
    Sketcher.Constraint("Coincident", 3, 2, 0, 1),
    Sketcher.Constraint("Vertical", 0),
    Sketcher.Constraint("Horizontal", 1),
    Sketcher.Constraint("Vertical", 2),
    Sketcher.Constraint("Horizontal", 3),
    Sketcher.Constraint("DistanceY", 0, 2, 0, 1, 8.0),
    Sketcher.Constraint("DistanceX", 1, 1, 1, 2, 18.5),
    Sketcher.Constraint("DistanceY", -1, 1, 0, 2, 20.0),
    Sketcher.Constraint("DistanceX", -1, 1, 1, 2, 25.0),
])
pocket11 = body.newObject("PartDesign::Pocket", "Pocket010")
pocket11.Profile = sketch12
pocket11.Type = "UpToFirst"
doc.recompute()

fillet = body.newObject("PartDesign::Fillet", "Fillet")
fillet.Base = (pocket11, edges_at(pocket11, [(25, 35, 98.5)]))
fillet.Radius = 8

doc.recompute()
